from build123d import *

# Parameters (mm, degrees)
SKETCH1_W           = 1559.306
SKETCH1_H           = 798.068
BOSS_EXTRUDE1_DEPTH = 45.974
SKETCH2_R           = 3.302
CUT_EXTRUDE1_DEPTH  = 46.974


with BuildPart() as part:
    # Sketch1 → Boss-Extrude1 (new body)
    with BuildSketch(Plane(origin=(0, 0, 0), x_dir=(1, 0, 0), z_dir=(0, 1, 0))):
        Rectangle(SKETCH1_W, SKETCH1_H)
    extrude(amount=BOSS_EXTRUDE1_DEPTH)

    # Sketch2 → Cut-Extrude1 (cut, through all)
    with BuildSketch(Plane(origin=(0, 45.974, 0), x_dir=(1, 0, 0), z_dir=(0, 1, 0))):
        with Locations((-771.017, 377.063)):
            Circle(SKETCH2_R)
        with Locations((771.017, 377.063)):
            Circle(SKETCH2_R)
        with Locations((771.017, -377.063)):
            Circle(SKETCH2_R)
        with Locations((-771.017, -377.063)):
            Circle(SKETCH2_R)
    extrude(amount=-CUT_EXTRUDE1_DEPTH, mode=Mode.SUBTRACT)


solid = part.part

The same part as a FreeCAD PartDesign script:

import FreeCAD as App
import Part
import Sketcher
Q = App.Units.Quantity

doc = App.newDocument("Part")
body = doc.addObject("PartDesign::Body", "Body")

sketch1 = body.newObject("Sketcher::SketchObject", "Sketch")
sketch1.AttachmentSupport = (doc.getObject("XZ_Plane"), [""])
sketch1.MapMode = "FlatFace"
sketch1.addGeometry([
    Part.LineSegment(App.Vector(-780, -399, 0), App.Vector(-780, 399, 0)),
    Part.LineSegment(App.Vector(-780, 399, 0), App.Vector(780, 399, 0)),
    Part.LineSegment(App.Vector(780, 399, 0), App.Vector(780, -399, 0)),
    Part.LineSegment(App.Vector(780, -399, 0), App.Vector(-780, -399, 0)),
], False)
sketch1.addConstraint([
    Sketcher.Constraint("Coincident", 0, 2, 1, 1),
    Sketcher.Constraint("Coincident", 1, 2, 2, 1),
    Sketcher.Constraint("Coincident", 2, 2, 3, 1),
    Sketcher.Constraint("Coincident", 3, 2, 0, 1),
    Sketcher.Constraint("Vertical", 0),
    Sketcher.Constraint("Horizontal", 1),
    Sketcher.Constraint("Vertical", 2),
    Sketcher.Constraint("Horizontal", 3),
    Sketcher.Constraint("Symmetric", 0, 2, 2, 2, -1, 1),
    Sketcher.Constraint("DistanceX", 1, 1, 1, 2, Q("61.39 in")),
    Sketcher.Constraint("DistanceY", 0, 1, 0, 2, Q("31.42 in")),
])
pad1 = body.newObject("PartDesign::Pad", "Pad")
pad1.Profile = sketch1
pad1.Length = Q("1.81 in")
pad1.Reversed = True

sketch2 = body.newObject("Sketcher::SketchObject", "Sketch001")
sketch2.AttachmentSupport = (doc.getObject("XZ_Plane"), [""])
sketch2.MapMode = "FlatFace"
sketch2.AttachmentOffset = App.Placement(App.Vector(0, 0, -1.81 * 25.4), App.Rotation())
sketch2.addGeometry([
    Part.Circle(App.Vector(-771, -377.1, 0), App.Vector(0, 0, 1), 3.3),
    Part.Circle(App.Vector(771, -377.1, 0), App.Vector(0, 0, 1), 3.3),
    Part.Circle(App.Vector(771, 377.1, 0), App.Vector(0, 0, 1), 3.3),
    Part.Circle(App.Vector(-771, 377.1, 0), App.Vector(0, 0, 1), 3.3),
], False)
sketch2.addConstraint([
    Sketcher.Constraint("Equal", 0, 1),
    Sketcher.Constraint("Equal", 1, 2),
    Sketcher.Constraint("Equal", 2, 3),
    Sketcher.Constraint("Symmetric", 0, 3, 2, 3, -1, 1),
    Sketcher.Constraint("Symmetric", 1, 3, 3, 3, -1, 1),
    Sketcher.Constraint("Symmetric", 0, 3, 1, 3, -2),
    Sketcher.Constraint("Diameter", 0, Q("0.26 in")),
    Sketcher.Constraint("DistanceX", 0, 3, 1, 3, Q("60.71 in")),
    Sketcher.Constraint("DistanceY", 1, 3, 2, 3, Q("29.69 in")),
])
pocket1 = body.newObject("PartDesign::Pocket", "Pocket")
pocket1.Profile = sketch2
pocket1.Type = "ThroughAll"
pocket1.Reversed = True

doc.recompute()
